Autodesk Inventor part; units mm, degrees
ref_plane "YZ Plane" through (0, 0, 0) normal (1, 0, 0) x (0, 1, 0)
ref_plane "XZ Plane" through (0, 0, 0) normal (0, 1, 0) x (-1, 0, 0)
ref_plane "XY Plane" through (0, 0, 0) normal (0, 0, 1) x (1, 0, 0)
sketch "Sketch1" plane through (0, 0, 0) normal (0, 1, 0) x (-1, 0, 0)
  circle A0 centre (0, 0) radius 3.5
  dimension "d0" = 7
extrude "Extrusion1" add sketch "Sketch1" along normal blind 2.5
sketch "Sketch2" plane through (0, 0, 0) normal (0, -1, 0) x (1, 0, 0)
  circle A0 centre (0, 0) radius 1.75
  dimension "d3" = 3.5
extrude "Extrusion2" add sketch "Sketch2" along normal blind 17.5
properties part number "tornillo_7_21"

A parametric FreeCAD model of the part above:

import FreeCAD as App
import Part
import Sketcher

V = App.Vector

doc = App.newDocument("Part")
body = doc.addObject("PartDesign::Body", "Body")

# Sketch on XZ plane
sketch1 = doc.addObject("Sketcher::SketchObject", "Sketch")
body.addObject(sketch1)
sketch1.AttachmentSupport = (doc.XZ_Plane, [""])
sketch1.MapMode = "FlatFace"
sketch1.addGeometry(Part.Circle(V(0, 0, 0), V(0, 0, 1), 3.5), False)
sketch1.addConstraint(Sketcher.Constraint("Coincident", 0, 3, -1, 1))
sketch1.addConstraint(Sketcher.Constraint("Diameter", 0, 7.0))
pad1 = doc.addObject("PartDesign::Pad", "Pad")
body.addObject(pad1)
pad1.Profile = sketch1
pad1.Length = 2.5
pad1.Reversed = True

# Sketch on XZ plane
sketch2 = doc.addObject("Sketcher::SketchObject", "Sketch001")
body.addObject(sketch2)
sketch2.AttachmentSupport = (doc.XZ_Plane, [""])
sketch2.MapMode = "FlatFace"
sketch2.addGeometry(Part.Circle(V(0, 0, 0), V(0, 0, 1), 1.8), False)
sketch2.addConstraint(Sketcher.Constraint("Coincident", 0, 3, -1, 1))
sketch2.addConstraint(Sketcher.Constraint("Diameter", 0, 3.5))
pad2 = doc.addObject("PartDesign::Pad", "Pad001")
body.addObject(pad2)
pad2.Profile = sketch2
pad2.Length = 17.5

doc.recompute()
